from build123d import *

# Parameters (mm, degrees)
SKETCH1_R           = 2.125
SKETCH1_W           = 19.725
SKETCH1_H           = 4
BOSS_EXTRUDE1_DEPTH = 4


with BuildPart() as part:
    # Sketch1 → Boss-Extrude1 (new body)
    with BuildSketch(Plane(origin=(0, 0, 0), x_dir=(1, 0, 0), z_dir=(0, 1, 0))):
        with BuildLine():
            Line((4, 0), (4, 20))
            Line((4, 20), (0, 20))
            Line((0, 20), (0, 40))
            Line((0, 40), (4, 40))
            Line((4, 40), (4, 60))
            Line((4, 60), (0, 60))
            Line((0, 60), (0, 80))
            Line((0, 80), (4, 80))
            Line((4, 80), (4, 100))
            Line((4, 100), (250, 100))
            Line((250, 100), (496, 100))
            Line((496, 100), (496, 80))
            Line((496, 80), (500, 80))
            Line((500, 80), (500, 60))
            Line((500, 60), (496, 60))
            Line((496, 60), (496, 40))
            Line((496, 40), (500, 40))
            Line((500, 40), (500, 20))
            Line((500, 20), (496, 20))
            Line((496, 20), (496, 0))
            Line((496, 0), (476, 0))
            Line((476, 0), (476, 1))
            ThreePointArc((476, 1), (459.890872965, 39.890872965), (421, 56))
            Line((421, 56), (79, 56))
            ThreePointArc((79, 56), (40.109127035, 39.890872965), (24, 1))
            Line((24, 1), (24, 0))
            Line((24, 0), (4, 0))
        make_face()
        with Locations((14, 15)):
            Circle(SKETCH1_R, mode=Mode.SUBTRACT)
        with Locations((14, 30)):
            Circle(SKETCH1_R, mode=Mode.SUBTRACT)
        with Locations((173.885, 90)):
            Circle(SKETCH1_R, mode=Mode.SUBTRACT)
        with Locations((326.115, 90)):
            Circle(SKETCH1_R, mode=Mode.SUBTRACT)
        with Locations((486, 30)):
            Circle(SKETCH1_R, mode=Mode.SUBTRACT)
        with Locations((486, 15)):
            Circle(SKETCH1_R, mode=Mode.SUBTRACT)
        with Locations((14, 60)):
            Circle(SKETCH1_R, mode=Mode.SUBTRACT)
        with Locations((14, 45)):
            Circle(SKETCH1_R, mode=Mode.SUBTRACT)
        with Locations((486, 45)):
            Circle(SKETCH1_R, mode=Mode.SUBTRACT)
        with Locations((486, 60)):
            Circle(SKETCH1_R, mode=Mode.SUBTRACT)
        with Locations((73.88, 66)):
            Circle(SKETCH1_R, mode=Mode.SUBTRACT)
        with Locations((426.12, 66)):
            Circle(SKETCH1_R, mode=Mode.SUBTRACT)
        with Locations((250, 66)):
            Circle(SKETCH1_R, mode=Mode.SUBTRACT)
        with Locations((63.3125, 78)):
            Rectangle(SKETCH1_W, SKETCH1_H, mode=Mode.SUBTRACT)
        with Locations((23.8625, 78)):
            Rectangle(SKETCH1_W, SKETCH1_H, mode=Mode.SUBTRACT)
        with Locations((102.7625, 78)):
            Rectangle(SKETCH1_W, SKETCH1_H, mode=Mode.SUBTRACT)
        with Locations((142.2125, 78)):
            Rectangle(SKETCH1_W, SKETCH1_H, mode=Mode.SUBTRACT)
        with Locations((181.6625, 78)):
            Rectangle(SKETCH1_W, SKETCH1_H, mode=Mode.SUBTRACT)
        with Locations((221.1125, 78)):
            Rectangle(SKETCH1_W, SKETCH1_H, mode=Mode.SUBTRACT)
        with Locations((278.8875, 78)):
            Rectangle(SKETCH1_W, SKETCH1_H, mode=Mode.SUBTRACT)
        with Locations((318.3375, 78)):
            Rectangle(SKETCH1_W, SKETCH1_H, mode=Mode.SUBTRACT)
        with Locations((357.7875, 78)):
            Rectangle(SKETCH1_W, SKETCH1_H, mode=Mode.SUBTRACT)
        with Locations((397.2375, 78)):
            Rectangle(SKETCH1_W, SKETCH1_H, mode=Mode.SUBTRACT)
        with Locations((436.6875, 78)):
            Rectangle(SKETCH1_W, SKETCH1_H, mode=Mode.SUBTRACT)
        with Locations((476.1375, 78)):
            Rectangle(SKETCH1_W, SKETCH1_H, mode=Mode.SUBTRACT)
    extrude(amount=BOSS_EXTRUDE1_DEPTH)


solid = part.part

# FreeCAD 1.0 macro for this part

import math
import FreeCAD as App
import Part
import Sketcher

V = App.Vector

doc = App.newDocument("Part")
body = doc.addObject("PartDesign::Body", "Body")

# Sketch on XZ plane
sketch1 = body.newObject("Sketcher::SketchObject", "Sketch")
sketch1.AttachmentSupport = (doc.getObject("XZ_Plane"), [""])
sketch1.MapMode = "FlatFace"
sketch1.addGeometry([
    Part.LineSegment(V(4, -20, 0), V(4, 0, 0)),  # 0
    Part.LineSegment(V(4, 0, 0), V(24, 0, 0)),  # 1
    Part.LineSegment(V(24, 0, 0), V(24, -1, 0)),  # 2
    Part.ArcOfCircle(Part.Circle(V(79, -1, 0), V(0, 0, 1), 55), math.radians(-180), math.radians(-90)),  # 3
    Part.LineSegment(V(79, -56, 0), V(421, -56, 0)),  # 4
    Part.ArcOfCircle(Part.Circle(V(421, -1, 0), V(0, 0, 1), 55), math.radians(-90), math.radians(0)),  # 5
    Part.LineSegment(V(476, -1, 0), V(476, 0, 0)),  # 6
    Part.LineSegment(V(476, 0, 0), V(496, 0, 0)),  # 7
    Part.LineSegment(V(496, 0, 0), V(496, -20, 0)),  # 8
    Part.LineSegment(V(496, -20, 0), V(500, -20, 0)),  # 9
    Part.LineSegment(V(500, -20, 0), V(500, -40, 0)),  # 10
    Part.LineSegment(V(500, -40, 0), V(496, -40, 0)),  # 11
    Part.LineSegment(V(496, -40, 0), V(496, -60, 0)),  # 12
    Part.LineSegment(V(496, -60, 0), V(500, -60, 0)),  # 13
    Part.LineSegment(V(500, -60, 0), V(500, -80, 0)),  # 14
    Part.LineSegment(V(500, -80, 0), V(496, -80, 0)),  # 15
    Part.LineSegment(V(496, -80, 0), V(496, -100, 0)),  # 16
    Part.LineSegment(V(496, -100, 0), V(4, -100, 0)),  # 17
    Part.LineSegment(V(4, -100, 0), V(4, -80, 0)),  # 18
    Part.LineSegment(V(4, -80, 0), V(0, -80, 0)),  # 19
    Part.LineSegment(V(0, -80, 0), V(0, -60, 0)),  # 20
    Part.LineSegment(V(0, -60, 0), V(4, -60, 0)),  # 21
    Part.LineSegment(V(4, -60, 0), V(4, -40, 0)),  # 22
    Part.LineSegment(V(4, -40, 0), V(0, -40, 0)),  # 23
    Part.LineSegment(V(0, -40, 0), V(0, -20, 0)),  # 24
    Part.LineSegment(V(0, -20, 0), V(4, -20, 0)),  # 25
    Part.Circle(V(486, -15, 0), V(0, 0, 1), 2.1),  # 26
    Part.Circle(V(486, -30, 0), V(0, 0, 1), 2.1),  # 27
    Part.Circle(V(486, -45, 0), V(0, 0, 1), 2.1),  # 28
    Part.Circle(V(14, -15, 0), V(0, 0, 1), 2.1),  # 29
    Part.Circle(V(14, -30, 0), V(0, 0, 1), 2.1),  # 30
    Part.Circle(V(14, -45, 0), V(0, 0, 1), 2.1),  # 31
    Part.Circle(V(486, -60, 0), V(0, 0, 1), 2.1),  # 32
    Part.Circle(V(426.1, -66, 0), V(0, 0, 1), 2.1),  # 33
    Part.LineSegment(V(466.3, -76, 0), V(466.3, -80, 0)),  # 34
    Part.LineSegment(V(466.3, -80, 0), V(486, -80, 0)),  # 35
    Part.LineSegment(V(486, -80, 0), V(486, -76, 0)),  # 36
    Part.LineSegment(V(486, -76, 0), V(466.3, -76, 0)),  # 37
    Part.LineSegment(V(426.8, -76, 0), V(426.8, -80, 0)),  # 38
    Part.LineSegment(V(426.8, -80, 0), V(446.6, -80, 0)),  # 39
    Part.LineSegment(V(446.6, -80, 0), V(446.6, -76, 0)),  # 40
    Part.LineSegment(V(446.6, -76, 0), V(426.8, -76, 0)),  # 41
    Part.LineSegment(V(387.4, -76, 0), V(387.4, -80, 0)),  # 42
    Part.LineSegment(V(387.4, -80, 0), V(407.1, -80, 0)),  # 43
    Part.LineSegment(V(407.1, -80, 0), V(407.1, -76, 0)),  # 44
    Part.LineSegment(V(407.1, -76, 0), V(387.4, -76, 0)),  # 45
    Part.LineSegment(V(347.9, -76, 0), V(347.9, -80, 0)),  # 46
    Part.LineSegment(V(347.9, -80, 0), V(367.6, -80, 0)),  # 47
    Part.LineSegment(V(367.6, -80, 0), V(367.6, -76, 0)),  # 48
    Part.LineSegment(V(367.6, -76, 0), V(347.9, -76, 0)),  # 49
    Part.LineSegment(V(308.5, -76, 0), V(308.5, -80, 0)),  # 50
    Part.LineSegment(V(308.5, -80, 0), V(328.2, -80, 0)),  # 51
    Part.LineSegment(V(328.2, -80, 0), V(328.2, -76, 0)),  # 52
    Part.LineSegment(V(328.2, -76, 0), V(308.5, -76, 0)),  # 53
    Part.LineSegment(V(269, -76, 0), V(269, -80, 0)),  # 54
    Part.LineSegment(V(269, -80, 0), V(288.8, -80, 0)),  # 55
    Part.LineSegment(V(288.8, -80, 0), V(288.8, -76, 0)),  # 56
    Part.LineSegment(V(288.8, -76, 0), V(269, -76, 0)),  # 57
    Part.Circle(V(326.1, -90, 0), V(0, 0, 1), 2.1),  # 58
    Part.Circle(V(250, -66, 0), V(0, 0, 1), 2.1),  # 59
    Part.Circle(V(14, -60, 0), V(0, 0, 1), 2.1),  # 60
    Part.Circle(V(73.9, -66, 0), V(0, 0, 1), 2.1),  # 61
    Part.LineSegment(V(211.2, -76, 0), V(211.2, -80, 0)),  # 62
    Part.LineSegment(V(211.2, -80, 0), V(231, -80, 0)),  # 63
    Part.LineSegment(V(231, -80, 0), V(231, -76, 0)),  # 64
    Part.LineSegment(V(231, -76, 0), V(211.2, -76, 0)),  # 65
    Part.LineSegment(V(171.8, -76, 0), V(171.8, -80, 0)),  # 66
    Part.LineSegment(V(171.8, -80, 0), V(191.5, -80, 0)),  # 67
    Part.LineSegment(V(191.5, -80, 0), V(191.5, -76, 0)),  # 68
    Part.LineSegment(V(191.5, -76, 0), V(171.8, -76, 0)),  # 69
    Part.LineSegment(V(132.3, -76, 0), V(132.3, -80, 0)),  # 70
    Part.LineSegment(V(132.3, -80, 0), V(152.1, -80, 0)),  # 71
    Part.LineSegment(V(152.1, -80, 0), V(152.1, -76, 0)),  # 72
    Part.LineSegment(V(152.1, -76, 0), V(132.3, -76, 0)),  # 73
    Part.Circle(V(173.9, -90, 0), V(0, 0, 1), 2.1),  # 74
    Part.LineSegment(V(92.9, -76, 0), V(92.9, -80, 0)),  # 75
    Part.LineSegment(V(92.9, -80, 0), V(112.6, -80, 0)),  # 76
    Part.LineSegment(V(112.6, -80, 0), V(112.6, -76, 0)),  # 77
    Part.LineSegment(V(112.6, -76, 0), V(92.9, -76, 0)),  # 78
    Part.LineSegment(V(53.5, -76, 0), V(53.5, -80, 0)),  # 79
    Part.LineSegment(V(53.5, -80, 0), V(73.2, -80, 0)),  # 80
    Part.LineSegment(V(73.2, -80, 0), V(73.2, -76, 0)),  # 81
    Part.LineSegment(V(73.2, -76, 0), V(53.5, -76, 0)),  # 82
    Part.LineSegment(V(14, -76, 0), V(14, -80, 0)),  # 83
    Part.LineSegment(V(14, -80, 0), V(33.7, -80, 0)),  # 84
    Part.LineSegment(V(33.7, -80, 0), V(33.7, -76, 0)),  # 85
    Part.LineSegment(V(33.7, -76, 0), V(14, -76, 0)),  # 86
], False)
sketch1.addConstraint([
    Sketcher.Constraint("Coincident", 0, 2, 1, 1),
    Sketcher.Constraint("Coincident", 1, 2, 2, 1),
    Sketcher.Constraint("Tangent", 2, 2, 3, 1),
    Sketcher.Constraint("Tangent", 3, 2, 4, 1),
    Sketcher.Constraint("Tangent", 4, 2, 5, 1),
    Sketcher.Constraint("Tangent", 5, 2, 6, 1),
    Sketcher.Constraint("Coincident", 6, 2, 7, 1),
    Sketcher.Constraint("Coincident", 7, 2, 8, 1),
    Sketcher.Constraint("Coincident", 8, 2, 9, 1),
    Sketcher.Constraint("Coincident", 9, 2, 10, 1),
    Sketcher.Constraint("Coincident", 10, 2, 11, 1),
    Sketcher.Constraint("Coincident", 11, 2, 12, 1),
    Sketcher.Constraint("Coincident", 12, 2, 13, 1),
    Sketcher.Constraint("Coincident", 13, 2, 14, 1),
    Sketcher.Constraint("Coincident", 14, 2, 15, 1),
    Sketcher.Constraint("Coincident", 15, 2, 16, 1),
    Sketcher.Constraint("Coincident", 16, 2, 17, 1),
    Sketcher.Constraint("Coincident", 17, 2, 18, 1),
    Sketcher.Constraint("Coincident", 18, 2, 19, 1),
    Sketcher.Constraint("Coincident", 19, 2, 20, 1),
    Sketcher.Constraint("Coincident", 20, 2, 21, 1),
    Sketcher.Constraint("Coincident", 21, 2, 22, 1),
    Sketcher.Constraint("Coincident", 22, 2, 23, 1),
    Sketcher.Constraint("Coincident", 23, 2, 24, 1),
    Sketcher.Constraint("Coincident", 24, 2, 25, 1),
    Sketcher.Constraint("Coincident", 25, 2, 0, 1),
    Sketcher.Constraint("Coincident", 34, 2, 35, 1),
    Sketcher.Constraint("Coincident", 35, 2, 36, 1),
    Sketcher.Constraint("Coincident", 36, 2, 37, 1),
    Sketcher.Constraint("Coincident", 37, 2, 34, 1),
    Sketcher.Constraint("Coincident", 38, 2, 39, 1),
    Sketcher.Constraint("Coincident", 39, 2, 40, 1),
    Sketcher.Constraint("Coincident", 40, 2, 41, 1),
    Sketcher.Constraint("Coincident", 41, 2, 38, 1),
    Sketcher.Constraint("Coincident", 42, 2, 43, 1),
    Sketcher.Constraint("Coincident", 43, 2, 44, 1),
    Sketcher.Constraint("Coincident", 44, 2, 45, 1),
    Sketcher.Constraint("Coincident", 45, 2, 42, 1),
    Sketcher.Constraint("Coincident", 46, 2, 47, 1),
    Sketcher.Constraint("Coincident", 47, 2, 48, 1),
    Sketcher.Constraint("Coincident", 48, 2, 49, 1),
    Sketcher.Constraint("Coincident", 49, 2, 46, 1),
    Sketcher.Constraint("Coincident", 50, 2, 51, 1),
    Sketcher.Constraint("Coincident", 51, 2, 52, 1),
    Sketcher.Constraint("Coincident", 52, 2, 53, 1),
    Sketcher.Constraint("Coincident", 53, 2, 50, 1),
    Sketcher.Constraint("Coincident", 54, 2, 55, 1),
    Sketcher.Constraint("Coincident", 55, 2, 56, 1),
    Sketcher.Constraint("Coincident", 56, 2, 57, 1),
    Sketcher.Constraint("Coincident", 57, 2, 54, 1),
    Sketcher.Constraint("Coincident", 62, 2, 63, 1),
    Sketcher.Constraint("Coincident", 63, 2, 64, 1),
    Sketcher.Constraint("Coincident", 64, 2, 65, 1),
    Sketcher.Constraint("Coincident", 65, 2, 62, 1),
    Sketcher.Constraint("Coincident", 66, 2, 67, 1),
    Sketcher.Constraint("Coincident", 67, 2, 68, 1),
    Sketcher.Constraint("Coincident", 68, 2, 69, 1),
    Sketcher.Constraint("Coincident", 69, 2, 66, 1),
    Sketcher.Constraint("Coincident", 70, 2, 71, 1),
    Sketcher.Constraint("Coincident", 71, 2, 72, 1),
    Sketcher.Constraint("Coincident", 72, 2, 73, 1),
    Sketcher.Constraint("Coincident", 73, 2, 70, 1),
    Sketcher.Constraint("Coincident", 75, 2, 76, 1),
    Sketcher.Constraint("Coincident", 76, 2, 77, 1),
    Sketcher.Constraint("Coincident", 77, 2, 78, 1),
    Sketcher.Constraint("Coincident", 78, 2, 75, 1),
    Sketcher.Constraint("Coincident", 79, 2, 80, 1),
    Sketcher.Constraint("Coincident", 80, 2, 81, 1),
    Sketcher.Constraint("Coincident", 81, 2, 82, 1),
    Sketcher.Constraint("Coincident", 82, 2, 79, 1),
    Sketcher.Constraint("Coincident", 83, 2, 84, 1),
    Sketcher.Constraint("Coincident", 84, 2, 85, 1),
    Sketcher.Constraint("Coincident", 85, 2, 86, 1),
    Sketcher.Constraint("Coincident", 86, 2, 83, 1),
    Sketcher.Constraint("Vertical", 0),
    Sketcher.Constraint("Horizontal", 1),
    Sketcher.Constraint("Vertical", 2),
    Sketcher.Constraint("Horizontal", 4),
    Sketcher.Constraint("Vertical", 6),
    Sketcher.Constraint("Horizontal", 7),
    Sketcher.Constraint("Vertical", 8),
    Sketcher.Constraint("Horizontal", 9),
    Sketcher.Constraint("Vertical", 10),
    Sketcher.Constraint("Horizontal", 11),
    Sketcher.Constraint("Vertical", 12),
    Sketcher.Constraint("Horizontal", 13),
    Sketcher.Constraint("Vertical", 14),
    Sketcher.Constraint("Horizontal", 15),
    Sketcher.Constraint("Vertical", 16),
    Sketcher.Constraint("Horizontal", 17),
    Sketcher.Constraint("Vertical", 18),
    Sketcher.Constraint("Horizontal", 19),
    Sketcher.Constraint("Vertical", 20),
    Sketcher.Constraint("Horizontal", 21),
    Sketcher.Constraint("Vertical", 22),
    Sketcher.Constraint("Horizontal", 23),
    Sketcher.Constraint("Vertical", 24),
    Sketcher.Constraint("Horizontal", 25),
    Sketcher.Constraint("Vertical", 34),
    Sketcher.Constraint("Horizontal", 35),
    Sketcher.Constraint("Vertical", 36),
    Sketcher.Constraint("Horizontal", 37),
    Sketcher.Constraint("Vertical", 38),
    Sketcher.Constraint("Horizontal", 39),
    Sketcher.Constraint("Vertical", 40),
    Sketcher.Constraint("Horizontal", 41),
    Sketcher.Constraint("Vertical", 42),
    Sketcher.Constraint("Horizontal", 43),
    Sketcher.Constraint("Vertical", 44),
    Sketcher.Constraint("Horizontal", 45),
    Sketcher.Constraint("Vertical", 46),
    Sketcher.Constraint("Horizontal", 47),
    Sketcher.Constraint("Vertical", 48),
    Sketcher.Constraint("Horizontal", 49),
    Sketcher.Constraint("Vertical", 50),
    Sketcher.Constraint("Horizontal", 51),
    Sketcher.Constraint("Vertical", 52),
    Sketcher.Constraint("Horizontal", 53),
    Sketcher.Constraint("Vertical", 54),
    Sketcher.Constraint("Horizontal", 55),
    Sketcher.Constraint("Vertical", 56),
    Sketcher.Constraint("Horizontal", 57),
    Sketcher.Constraint("Vertical", 62),
    Sketcher.Constraint("Horizontal", 63),
    Sketcher.Constraint("Vertical", 64),
    Sketcher.Constraint("Horizontal", 65),
    Sketcher.Constraint("Vertical", 66),
    Sketcher.Constraint("Horizontal", 67),
    Sketcher.Constraint("Vertical", 68),
    Sketcher.Constraint("Horizontal", 69),
    Sketcher.Constraint("Vertical", 70),
    Sketcher.Constraint("Horizontal", 71),
    Sketcher.Constraint("Vertical", 72),
    Sketcher.Constraint("Horizontal", 73),
    Sketcher.Constraint("Vertical", 75),
    Sketcher.Constraint("Horizontal", 76),
    Sketcher.Constraint("Vertical", 77),
    Sketcher.Constraint("Horizontal", 78),
    Sketcher.Constraint("Vertical", 79),
    Sketcher.Constraint("Horizontal", 80),
    Sketcher.Constraint("Vertical", 81),
    Sketcher.Constraint("Horizontal", 82),
    Sketcher.Constraint("Vertical", 83),
    Sketcher.Constraint("Horizontal", 84),
    Sketcher.Constraint("Vertical", 85),
    Sketcher.Constraint("Horizontal", 86),
    Sketcher.Constraint("Equal", 3, 5),
    Sketcher.Constraint("Equal", 26, 27),
    Sketcher.Constraint("Equal", 27, 28),
    Sketcher.Constraint("Equal", 28, 29),
    Sketcher.Constraint("Equal", 29, 30),
    Sketcher.Constraint("Equal", 30, 31),
    Sketcher.Constraint("Equal", 31, 32),
    Sketcher.Constraint("Equal", 32, 33),
    Sketcher.Constraint("Equal", 33, 58),
    Sketcher.Constraint("Equal", 58, 59),
    Sketcher.Constraint("Equal", 59, 60),
    Sketcher.Constraint("Equal", 60, 61),
    Sketcher.Constraint("Equal", 61, 74),
    Sketcher.Constraint("PointOnObject", 0, 2, -1),
    Sketcher.Constraint("PointOnObject", 6, 2, -1),
    Sketcher.Constraint("PointOnObject", 19, 2, -2),
    Sketcher.Constraint("PointOnObject", 23, 2, -2),
    Sketcher.Constraint("Horizontal", 26, 3, 29, 3),
    Sketcher.Constraint("Horizontal", 27, 3, 30, 3),
    Sketcher.Constraint("Horizontal", 28, 3, 31, 3),
    Sketcher.Constraint("Horizontal", 33, 3, 59, 3),
    Sketcher.Constraint("Horizontal", 32, 3, 60, 3),
    Sketcher.Constraint("Horizontal", 59, 3, 61, 3),
    Sketcher.Constraint("Horizontal", 58, 3, 74, 3),
    Sketcher.Constraint("Horizontal", 60, 3, 12, 2),
    Sketcher.Constraint("Horizontal", 15, 2, 18, 2),
    Sketcher.Constraint("Horizontal", 13, 2, 20, 2),
    Sketcher.Constraint("Horizontal", 11, 2, 22, 2),
    Sketcher.Constraint("Horizontal", 9, 2, 24, 2),
    Sketcher.Constraint("Horizontal", 19, 2, 34, 2),
    Sketcher.Constraint("Horizontal", 35, 2, 38, 2),
    Sketcher.Constraint("Horizontal", 37, 2, 40, 2),
    Sketcher.Constraint("Horizontal", 39, 2, 42, 2),
    Sketcher.Constraint("Horizontal", 41, 2, 44, 2),
    Sketcher.Constraint("Horizontal", 43, 2, 46, 2),
    Sketcher.Constraint("Horizontal", 45, 2, 48, 2),
    Sketcher.Constraint("Horizontal", 47, 2, 50, 2),
    Sketcher.Constraint("Horizontal", 49, 2, 52, 2),
    Sketcher.Constraint("Horizontal", 51, 2, 54, 2),
    Sketcher.Constraint("Horizontal", 53, 2, 56, 2),
    Sketcher.Constraint("Horizontal", 55, 2, 62, 2),
    Sketcher.Constraint("Horizontal", 57, 2, 64, 2),
    Sketcher.Constraint("Horizontal", 63, 2, 66, 2),
    Sketcher.Constraint("Horizontal", 65, 2, 68, 2),
    Sketcher.Constraint("Horizontal", 67, 2, 70, 2),
    Sketcher.Constraint("Horizontal", 69, 2, 72, 2),
    Sketcher.Constraint("Horizontal", 71, 2, 75, 2),
    Sketcher.Constraint("Horizontal", 73, 2, 77, 2),
    Sketcher.Constraint("Horizontal", 76, 2, 79, 2),
    Sketcher.Constraint("Horizontal", 78, 2, 81, 2),
    Sketcher.Constraint("Horizontal", 80, 2, 83, 2),
    Sketcher.Constraint("Horizontal", 82, 2, 85, 2),
    Sketcher.Constraint("Vertical", 26, 3, 27, 3),
    Sketcher.Constraint("Vertical", 27, 3, 28, 3),
    Sketcher.Constraint("Vertical", 29, 3, 30, 3),
    Sketcher.Constraint("Vertical", 30, 3, 31, 3),
    Sketcher.Constraint("Vertical", 28, 3, 32, 3),
    Sketcher.Constraint("Vertical", 31, 3, 60, 3),
    Sketcher.Constraint("Vertical", 8, 2, 11, 2),
    Sketcher.Constraint("Vertical", 10, 2, 13, 2),
    Sketcher.Constraint("Vertical", 12, 2, 15, 2),
    Sketcher.Constraint("Vertical", 0, 2, 17, 2),
    Sketcher.Constraint("Vertical", 18, 2, 21, 2),
    Sketcher.Constraint("Vertical", 32, 3, 35, 2),
    Sketcher.Constraint("Vertical", 60, 3, 83, 2),
    Sketcher.Constraint("Equal", 1, 7),
    Sketcher.Constraint("Equal", 15, 19),
    Sketcher.Constraint("Equal", 37, 39),
    Sketcher.Constraint("Equal", 41, 43),
    Sketcher.Constraint("Equal", 45, 47),
    Sketcher.Constraint("Equal", 49, 51),
    Sketcher.Constraint("Equal", 53, 55),
    Sketcher.Constraint("Equal", 57, 63),
    Sketcher.Constraint("Equal", 65, 67),
    Sketcher.Constraint("Equal", 69, 71),
    Sketcher.Constraint("Equal", 73, 76),
    Sketcher.Constraint("Equal", 78, 80),
    Sketcher.Constraint("Equal", 82, 84),
    Sketcher.Constraint("Equal", 7, 0),
    Sketcher.Constraint("Equal", 8, 10),
    Sketcher.Constraint("Equal", 10, 12),
    Sketcher.Constraint("Equal", 12, 14),
    Sketcher.Constraint("Equal", 14, 16),
    Sketcher.Constraint("Equal", 25, 34),
    Sketcher.Constraint("Radius", 3, 55.0),
    Sketcher.Constraint("Diameter", 26, 4.25),
    Sketcher.Constraint("DistanceX", 1, 1, 1, 2, 20.0),
    Sketcher.Constraint("DistanceX", 4, 1, 4, 2, 342.0),
    Sketcher.Constraint("DistanceX", 9, 1, 9, 2, 4.0),
    Sketcher.Constraint("DistanceY", 2, 2, 2, 1, 1.0),
    Sketcher.Constraint("DistanceX", -1, 1, 26, 3, 486.0),
    Sketcher.Constraint("DistanceY", 26, 3, -1, 1, 15.0),
    Sketcher.Constraint("DistanceY", 27, 3, -1, 1, 30.0),
    Sketcher.Constraint("DistanceY", 28, 3, -1, 1, 45.0),
    Sketcher.Constraint("DistanceX", -1, 1, 29, 3, 14.0),
    Sketcher.Constraint("DistanceY", 33, 3, -1, 1, 66.0),
    Sketcher.Constraint("DistanceY", 58, 3, -1, 1, 90.0),
    Sketcher.Constraint("DistanceX", -1, 1, 59, 3, 250.0),
    Sketcher.Constraint("DistanceX", -1, 1, 43, 2, 407.1),
    Sketcher.Constraint("DistanceX", -1, 1, 51, 2, 328.2),
    Sketcher.Constraint("DistanceX", -1, 1, 66, 2, 171.8),
    Sketcher.Constraint("DistanceX", -1, 1, 75, 2, 92.9),
    Sketcher.Constraint("DistanceX", 35, 1, 35, 2, 19.725),
    Sketcher.Constraint("DistanceX", -1, 1, 33, 3, 426.12),
    Sketcher.Constraint("DistanceX", -1, 1, 61, 3, 73.88),
    Sketcher.Constraint("DistanceX", -1, 1, 39, 2, 446.55),
    Sketcher.Constraint("DistanceX", -1, 1, 47, 2, 367.65),
    Sketcher.Constraint("DistanceX", -1, 1, 55, 2, 288.75),
    Sketcher.Constraint("DistanceX", -1, 1, 62, 2, 211.25),
    Sketcher.Constraint("DistanceX", -1, 1, 70, 2, 132.35),
    Sketcher.Constraint("DistanceX", -1, 1, 79, 2, 53.45),
    Sketcher.Constraint("DistanceX", -1, 1, 58, 3, 326.115),
    Sketcher.Constraint("DistanceX", -1, 1, 74, 3, 173.885),
])
pad1 = body.newObject("PartDesign::Pad", "Pad")
pad1.Profile = sketch1
pad1.Length = 4
pad1.Reversed = True

doc.recompute()
